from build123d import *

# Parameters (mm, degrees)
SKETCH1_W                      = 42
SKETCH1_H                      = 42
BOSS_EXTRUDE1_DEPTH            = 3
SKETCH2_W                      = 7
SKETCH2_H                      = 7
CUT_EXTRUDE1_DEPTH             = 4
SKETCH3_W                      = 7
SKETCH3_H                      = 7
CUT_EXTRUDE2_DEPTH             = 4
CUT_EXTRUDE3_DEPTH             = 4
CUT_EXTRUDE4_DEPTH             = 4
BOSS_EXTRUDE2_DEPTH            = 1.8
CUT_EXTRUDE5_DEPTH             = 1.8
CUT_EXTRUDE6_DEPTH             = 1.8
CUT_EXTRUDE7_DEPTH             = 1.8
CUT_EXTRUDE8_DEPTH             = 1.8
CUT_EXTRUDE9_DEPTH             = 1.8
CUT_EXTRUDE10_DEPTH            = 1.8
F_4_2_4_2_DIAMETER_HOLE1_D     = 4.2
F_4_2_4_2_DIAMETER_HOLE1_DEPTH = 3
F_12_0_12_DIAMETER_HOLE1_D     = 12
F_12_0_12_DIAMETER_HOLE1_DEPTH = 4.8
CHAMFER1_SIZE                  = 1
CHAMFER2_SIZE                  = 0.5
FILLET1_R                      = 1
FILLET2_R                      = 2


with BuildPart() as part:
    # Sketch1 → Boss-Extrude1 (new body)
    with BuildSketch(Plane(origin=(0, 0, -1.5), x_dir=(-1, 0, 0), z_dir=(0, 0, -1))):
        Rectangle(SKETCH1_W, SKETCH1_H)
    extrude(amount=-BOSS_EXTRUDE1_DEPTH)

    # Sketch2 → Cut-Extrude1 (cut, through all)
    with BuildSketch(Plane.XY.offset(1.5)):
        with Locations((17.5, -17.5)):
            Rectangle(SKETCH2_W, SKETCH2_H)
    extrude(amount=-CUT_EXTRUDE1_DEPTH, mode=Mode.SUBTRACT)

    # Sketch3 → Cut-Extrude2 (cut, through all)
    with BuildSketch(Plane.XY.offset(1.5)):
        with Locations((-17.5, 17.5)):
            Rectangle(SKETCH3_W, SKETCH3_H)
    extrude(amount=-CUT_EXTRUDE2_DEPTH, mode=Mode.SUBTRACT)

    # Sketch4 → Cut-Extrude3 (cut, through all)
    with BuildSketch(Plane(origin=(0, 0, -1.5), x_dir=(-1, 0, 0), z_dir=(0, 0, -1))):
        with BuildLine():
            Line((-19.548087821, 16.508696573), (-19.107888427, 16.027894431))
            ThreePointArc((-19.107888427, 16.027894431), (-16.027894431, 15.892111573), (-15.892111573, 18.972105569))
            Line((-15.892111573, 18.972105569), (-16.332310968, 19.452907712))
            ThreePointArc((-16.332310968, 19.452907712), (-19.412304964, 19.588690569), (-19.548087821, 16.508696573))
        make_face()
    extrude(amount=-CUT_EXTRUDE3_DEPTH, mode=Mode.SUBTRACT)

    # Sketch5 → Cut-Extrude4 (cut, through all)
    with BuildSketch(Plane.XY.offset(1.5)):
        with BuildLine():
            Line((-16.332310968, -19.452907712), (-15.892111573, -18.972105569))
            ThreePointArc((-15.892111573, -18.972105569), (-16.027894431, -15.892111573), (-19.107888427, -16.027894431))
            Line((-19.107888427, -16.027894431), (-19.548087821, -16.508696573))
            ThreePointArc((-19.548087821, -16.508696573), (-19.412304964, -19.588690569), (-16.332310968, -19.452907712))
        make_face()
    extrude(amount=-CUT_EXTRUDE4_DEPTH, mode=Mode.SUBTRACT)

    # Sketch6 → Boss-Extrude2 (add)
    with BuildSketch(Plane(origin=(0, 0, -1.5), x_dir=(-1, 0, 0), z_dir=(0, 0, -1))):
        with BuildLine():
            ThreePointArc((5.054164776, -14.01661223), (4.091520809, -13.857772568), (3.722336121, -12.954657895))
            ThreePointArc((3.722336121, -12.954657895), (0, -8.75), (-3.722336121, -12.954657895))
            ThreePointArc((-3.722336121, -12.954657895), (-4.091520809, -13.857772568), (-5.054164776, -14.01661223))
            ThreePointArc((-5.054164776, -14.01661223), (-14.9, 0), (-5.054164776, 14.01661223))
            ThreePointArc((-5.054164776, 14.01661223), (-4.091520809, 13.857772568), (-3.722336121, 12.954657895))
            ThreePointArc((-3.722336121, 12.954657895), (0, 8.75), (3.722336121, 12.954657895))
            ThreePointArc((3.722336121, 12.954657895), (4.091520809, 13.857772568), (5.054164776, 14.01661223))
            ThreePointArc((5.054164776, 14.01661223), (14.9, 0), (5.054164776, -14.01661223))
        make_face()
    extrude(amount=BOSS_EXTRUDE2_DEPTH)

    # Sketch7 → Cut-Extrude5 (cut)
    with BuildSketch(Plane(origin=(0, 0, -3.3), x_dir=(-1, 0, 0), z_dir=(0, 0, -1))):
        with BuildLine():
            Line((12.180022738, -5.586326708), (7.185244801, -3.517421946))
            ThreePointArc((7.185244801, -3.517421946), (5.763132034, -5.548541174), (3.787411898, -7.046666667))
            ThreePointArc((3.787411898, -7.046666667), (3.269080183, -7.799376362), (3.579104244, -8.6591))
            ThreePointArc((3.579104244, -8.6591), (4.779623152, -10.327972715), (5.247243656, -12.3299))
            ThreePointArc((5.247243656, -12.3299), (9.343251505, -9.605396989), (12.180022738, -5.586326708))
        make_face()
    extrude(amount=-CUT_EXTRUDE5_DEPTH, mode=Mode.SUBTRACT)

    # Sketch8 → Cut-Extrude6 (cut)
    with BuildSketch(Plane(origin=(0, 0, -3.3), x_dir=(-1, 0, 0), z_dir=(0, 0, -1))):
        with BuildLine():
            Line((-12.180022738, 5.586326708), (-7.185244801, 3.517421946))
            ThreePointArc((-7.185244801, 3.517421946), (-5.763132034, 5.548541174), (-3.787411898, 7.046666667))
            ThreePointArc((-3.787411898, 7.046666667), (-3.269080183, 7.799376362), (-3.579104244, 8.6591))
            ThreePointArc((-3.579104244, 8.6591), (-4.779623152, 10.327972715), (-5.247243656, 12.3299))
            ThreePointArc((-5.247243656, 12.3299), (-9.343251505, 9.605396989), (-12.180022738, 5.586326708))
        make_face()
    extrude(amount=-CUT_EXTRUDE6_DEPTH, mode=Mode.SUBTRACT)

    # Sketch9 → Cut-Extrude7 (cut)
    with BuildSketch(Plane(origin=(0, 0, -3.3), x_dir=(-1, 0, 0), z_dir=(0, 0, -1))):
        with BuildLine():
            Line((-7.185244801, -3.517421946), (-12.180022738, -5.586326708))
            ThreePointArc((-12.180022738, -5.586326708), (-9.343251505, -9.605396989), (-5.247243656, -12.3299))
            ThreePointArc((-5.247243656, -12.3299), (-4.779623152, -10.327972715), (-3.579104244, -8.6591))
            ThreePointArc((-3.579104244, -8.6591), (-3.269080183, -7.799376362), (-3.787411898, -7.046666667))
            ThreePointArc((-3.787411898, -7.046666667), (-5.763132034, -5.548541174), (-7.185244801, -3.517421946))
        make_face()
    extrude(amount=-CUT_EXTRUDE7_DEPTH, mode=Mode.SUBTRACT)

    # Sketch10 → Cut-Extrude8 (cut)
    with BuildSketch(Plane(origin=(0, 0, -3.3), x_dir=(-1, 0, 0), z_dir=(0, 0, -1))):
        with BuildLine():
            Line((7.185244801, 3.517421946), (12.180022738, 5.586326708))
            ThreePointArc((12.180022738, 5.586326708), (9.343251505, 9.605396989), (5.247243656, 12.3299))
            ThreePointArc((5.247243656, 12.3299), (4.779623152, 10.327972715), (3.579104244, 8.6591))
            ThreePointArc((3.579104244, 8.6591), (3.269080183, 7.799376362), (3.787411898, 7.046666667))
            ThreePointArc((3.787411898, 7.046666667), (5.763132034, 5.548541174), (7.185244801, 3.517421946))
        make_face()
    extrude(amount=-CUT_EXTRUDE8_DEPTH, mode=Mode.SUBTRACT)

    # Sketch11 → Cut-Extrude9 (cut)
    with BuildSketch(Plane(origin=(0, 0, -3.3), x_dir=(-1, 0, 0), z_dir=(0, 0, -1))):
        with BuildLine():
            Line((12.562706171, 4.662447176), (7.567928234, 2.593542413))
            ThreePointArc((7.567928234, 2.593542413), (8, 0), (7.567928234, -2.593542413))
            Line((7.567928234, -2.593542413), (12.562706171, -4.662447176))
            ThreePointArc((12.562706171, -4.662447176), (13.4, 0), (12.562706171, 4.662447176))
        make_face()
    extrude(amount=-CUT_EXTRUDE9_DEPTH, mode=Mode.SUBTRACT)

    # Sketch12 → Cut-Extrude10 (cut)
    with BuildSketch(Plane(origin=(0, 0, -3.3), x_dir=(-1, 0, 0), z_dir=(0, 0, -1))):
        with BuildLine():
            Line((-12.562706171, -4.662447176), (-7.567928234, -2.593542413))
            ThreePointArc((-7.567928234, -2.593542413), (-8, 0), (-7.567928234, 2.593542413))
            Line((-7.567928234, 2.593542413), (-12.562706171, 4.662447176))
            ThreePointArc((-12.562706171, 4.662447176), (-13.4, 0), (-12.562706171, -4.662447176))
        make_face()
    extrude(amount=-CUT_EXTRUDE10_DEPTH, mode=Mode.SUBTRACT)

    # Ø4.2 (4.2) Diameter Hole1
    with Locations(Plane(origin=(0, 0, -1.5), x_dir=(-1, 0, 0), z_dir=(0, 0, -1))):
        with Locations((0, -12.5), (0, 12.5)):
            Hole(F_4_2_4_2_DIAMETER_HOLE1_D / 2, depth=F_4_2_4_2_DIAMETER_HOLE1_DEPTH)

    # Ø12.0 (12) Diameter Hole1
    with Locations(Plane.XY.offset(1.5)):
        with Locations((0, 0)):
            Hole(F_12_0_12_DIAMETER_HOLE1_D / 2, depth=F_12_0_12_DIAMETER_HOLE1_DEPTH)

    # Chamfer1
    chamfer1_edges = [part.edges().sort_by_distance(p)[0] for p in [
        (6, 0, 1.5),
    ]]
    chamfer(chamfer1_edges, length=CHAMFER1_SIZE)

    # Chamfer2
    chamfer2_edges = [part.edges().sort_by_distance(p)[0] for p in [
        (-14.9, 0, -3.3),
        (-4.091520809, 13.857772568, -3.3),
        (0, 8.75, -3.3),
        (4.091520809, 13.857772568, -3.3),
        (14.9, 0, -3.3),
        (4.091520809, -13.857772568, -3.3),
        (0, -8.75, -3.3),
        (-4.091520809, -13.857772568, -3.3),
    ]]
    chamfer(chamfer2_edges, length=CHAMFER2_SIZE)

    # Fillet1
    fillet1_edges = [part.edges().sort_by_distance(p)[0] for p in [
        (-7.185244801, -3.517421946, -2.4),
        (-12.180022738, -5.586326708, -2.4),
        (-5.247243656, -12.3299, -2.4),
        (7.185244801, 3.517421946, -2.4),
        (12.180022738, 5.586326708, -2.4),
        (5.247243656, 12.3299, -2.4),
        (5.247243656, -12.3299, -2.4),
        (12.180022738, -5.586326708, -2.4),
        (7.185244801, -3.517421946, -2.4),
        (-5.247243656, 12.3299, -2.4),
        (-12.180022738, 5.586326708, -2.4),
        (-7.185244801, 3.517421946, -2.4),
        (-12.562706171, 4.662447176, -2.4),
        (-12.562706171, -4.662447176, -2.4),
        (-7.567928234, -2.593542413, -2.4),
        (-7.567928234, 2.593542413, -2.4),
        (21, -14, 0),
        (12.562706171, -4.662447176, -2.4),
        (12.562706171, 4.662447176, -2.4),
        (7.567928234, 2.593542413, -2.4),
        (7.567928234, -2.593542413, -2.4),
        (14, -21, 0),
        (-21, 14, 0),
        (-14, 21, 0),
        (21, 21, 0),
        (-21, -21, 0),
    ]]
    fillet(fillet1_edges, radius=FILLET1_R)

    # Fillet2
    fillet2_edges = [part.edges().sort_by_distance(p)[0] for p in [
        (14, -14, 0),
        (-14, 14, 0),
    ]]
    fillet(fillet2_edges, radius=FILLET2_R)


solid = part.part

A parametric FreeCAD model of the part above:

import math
import FreeCAD as App
import Part
import Sketcher

V = App.Vector
Q = App.Units.Quantity


def edges_at(feature, points):
    """Names of the edges that pass closest to the given points."""
    edges = feature.Shape.Edges
    near = lambda p: min(range(len(edges)), key=lambda i: edges[i].distToShape(Part.Vertex(*p))[0])
    return sorted({f"Edge{near(p) + 1}" for p in points})


def add_polygon(sketch, points):
    """Adds a closed chain of lines whose ends are joined by coincident constraints."""
    first, n = sketch.GeometryCount, len(points)
    for a, b in zip(points, points[1:] + points[:1]):
        sketch.addGeometry(Part.LineSegment(App.Vector(*a, 0), App.Vector(*b, 0)), False)
    for i in range(n):
        sketch.addConstraint(Sketcher.Constraint("Coincident", first + i, 2, first + (i + 1) % n, 1))

doc = App.newDocument("Part")
body = doc.addObject("PartDesign::Body", "Body")

# Sketch on XY plane
sketch1 = body.newObject("Sketcher::SketchObject", "Sketch")
sketch1.AttachmentSupport = (doc.getObject("XY_Plane"), [""])
sketch1.MapMode = "FlatFace"
sketch1.AttachmentOffset = App.Placement(V(0, 0, -1.5), App.Rotation())
add_polygon(sketch1, [(21, 21), (21, -21), (-21, -21), (-21, 21)])  # lines 0-3
sketch1.addConstraint(Sketcher.Constraint("Vertical", 0))
sketch1.addConstraint(Sketcher.Constraint("Horizontal", 1))
sketch1.addConstraint(Sketcher.Constraint("Vertical", 2))
sketch1.addConstraint(Sketcher.Constraint("Horizontal", 3))
sketch1.addConstraint(Sketcher.Constraint("Symmetric", 0, 2, 2, 2, -1, 1))
sketch1.addConstraint(Sketcher.Constraint("Equal", 3, 0))
sketch1.addConstraint(Sketcher.Constraint("DistanceX", 1, 2, 1, 1, Q("42 mm")))
pad1 = body.newObject("PartDesign::Pad", "Pad")
pad1.Profile = sketch1
pad1.Length = 3

# Sketch on XY plane
sketch2 = body.newObject("Sketcher::SketchObject", "Sketch001")
sketch2.AttachmentSupport = (doc.getObject("XY_Plane"), [""])
sketch2.MapMode = "FlatFace"
sketch2.AttachmentOffset = App.Placement(V(0, 0, 1.5), App.Rotation())
add_polygon(sketch2, [(14, -14), (14, -21), (21, -21), (21, -14)])  # lines 0-3
sketch2.addConstraint(Sketcher.Constraint("Vertical", 0))
sketch2.addConstraint(Sketcher.Constraint("Horizontal", 1))
sketch2.addConstraint(Sketcher.Constraint("Vertical", 2))
sketch2.addConstraint(Sketcher.Constraint("Horizontal", 3))
sketch2.addConstraint(Sketcher.Constraint("Equal", 3, 0))
sketch2.addConstraint(Sketcher.Constraint("DistanceX", 1, 1, 1, 2, Q("7 mm")))
sketch2.addConstraint(Sketcher.Constraint("DistanceX", -1, 1, 0, 2, Q("14 mm")))
sketch2.addConstraint(Sketcher.Constraint("DistanceY", 0, 2, -1, 1, Q("21 mm")))
pocket1 = body.newObject("PartDesign::Pocket", "Pocket")
pocket1.Profile = sketch2
pocket1.Type = "ThroughAll"

# Sketch on XY plane
sketch3 = body.newObject("Sketcher::SketchObject", "Sketch002")
sketch3.AttachmentSupport = (doc.getObject("XY_Plane"), [""])
sketch3.MapMode = "FlatFace"
sketch3.AttachmentOffset = App.Placement(V(0, 0, 1.5), App.Rotation())
add_polygon(sketch3, [(-21, 21), (-21, 14), (-14, 14), (-14, 21)])  # lines 0-3
sketch3.addConstraint(Sketcher.Constraint("Vertical", 0))
sketch3.addConstraint(Sketcher.Constraint("Horizontal", 1))
sketch3.addConstraint(Sketcher.Constraint("Vertical", 2))
sketch3.addConstraint(Sketcher.Constraint("Horizontal", 3))
sketch3.addConstraint(Sketcher.Constraint("Equal", 3, 0))
sketch3.addConstraint(Sketcher.Constraint("DistanceX", 1, 1, 1, 2, Q("7 mm")))
sketch3.addConstraint(Sketcher.Constraint("DistanceX", 0, 2, -1, 1, Q("21 mm")))
sketch3.addConstraint(Sketcher.Constraint("DistanceY", -1, 1, 0, 2, Q("14 mm")))
pocket2 = body.newObject("PartDesign::Pocket", "Pocket001")
pocket2.Profile = sketch3
pocket2.Type = "ThroughAll"

# Sketch on XY plane
sketch4 = body.newObject("Sketcher::SketchObject", "Sketch003")
sketch4.AttachmentSupport = (doc.getObject("XY_Plane"), [""])
sketch4.MapMode = "FlatFace"
sketch4.AttachmentOffset = App.Placement(V(0, 0, -1.5), App.Rotation())
sketch4.addGeometry(Part.LineSegment(V(19.548088, 16.508697, 0), V(19.107888, 16.027894, 0)), False)
sketch4.addGeometry(Part.ArcOfCircle(Part.Circle(V(17.5, 17.5, 0), V(0, 0, 1), 2.18), math.radians(137.524275), math.radians(317.524275)), False)
sketch4.addGeometry(Part.LineSegment(V(15.892112, 18.972106, 0), V(16.332311, 19.452908, 0)), False)
sketch4.addGeometry(Part.ArcOfCircle(Part.Circle(V(17.940199, 17.980802, 0), V(0, 0, 1), 2.18), math.radians(-42.475725), math.radians(137.524275)), False)
sketch4.addConstraint(Sketcher.Constraint("Tangent", 0, 2, 1, 2))
sketch4.addConstraint(Sketcher.Constraint("Tangent", 1, 1, 2, 1))
sketch4.addConstraint(Sketcher.Constraint("Tangent", 2, 2, 3, 2))
sketch4.addConstraint(Sketcher.Constraint("Tangent", 3, 1, 0, 1))
sketch4.addConstraint(Sketcher.Constraint("Equal", 1, 3))
sketch4.addConstraint(Sketcher.Constraint("Radius", 1, Q("2.18 mm")))
sketch4.addConstraint(Sketcher.Constraint("DistanceX", -1, 1, 1, 3, Q("17.5 mm")))
sketch4.addConstraint(Sketcher.Constraint("DistanceY", -1, 1, 1, 3, Q("17.5 mm")))
sketch4.addConstraint(Sketcher.Constraint("DistanceX", -1, 1, 3, 3, Q("17.940199 mm")))
sketch4.addConstraint(Sketcher.Constraint("Distance", 0, Q("0.651879 mm")))
pocket3 = body.newObject("PartDesign::Pocket", "Pocket002")
pocket3.Profile = sketch4
pocket3.Type = "ThroughAll"
pocket3.Reversed = True

# Sketch on XY plane
sketch5 = body.newObject("Sketcher::SketchObject", "Sketch004")
sketch5.AttachmentSupport = (doc.getObject("XY_Plane"), [""])
sketch5.MapMode = "FlatFace"
sketch5.AttachmentOffset = App.Placement(V(0, 0, 1.5), App.Rotation())
sketch5.addGeometry(Part.LineSegment(V(-16.332311, -19.452908, 0), V(-15.892112, -18.972106, 0)), False)
sketch5.addGeometry(Part.ArcOfCircle(Part.Circle(V(-17.5, -17.5, 0), V(0, 0, 1), 2.18), math.radians(-42.475725), math.radians(137.524275)), False)
sketch5.addGeometry(Part.LineSegment(V(-19.107888, -16.027894, 0), V(-19.548088, -16.508697, 0)), False)
sketch5.addGeometry(Part.ArcOfCircle(Part.Circle(V(-17.940199, -17.980802, 0), V(0, 0, 1), 2.18), math.radians(137.524275), math.radians(317.524275)), False)
sketch5.addConstraint(Sketcher.Constraint("Tangent", 0, 2, 1, 1))
sketch5.addConstraint(Sketcher.Constraint("Tangent", 1, 2, 2, 1))
sketch5.addConstraint(Sketcher.Constraint("Tangent", 2, 2, 3, 1))
sketch5.addConstraint(Sketcher.Constraint("Tangent", 3, 2, 0, 1))
sketch5.addConstraint(Sketcher.Constraint("Equal", 1, 3))
sketch5.addConstraint(Sketcher.Constraint("Radius", 1, Q("2.18 mm")))
sketch5.addConstraint(Sketcher.Constraint("DistanceX", 1, 3, -1, 1, Q("17.5 mm")))
sketch5.addConstraint(Sketcher.Constraint("DistanceY", 1, 3, -1, 1, Q("17.5 mm")))
sketch5.addConstraint(Sketcher.Constraint("DistanceX", 3, 3, -1, 1, Q("17.940199 mm")))
sketch5.addConstraint(Sketcher.Constraint("Distance", 0, Q("0.651879 mm")))
pocket4 = body.newObject("PartDesign::Pocket", "Pocket003")
pocket4.Profile = sketch5
pocket4.Type = "ThroughAll"

# Sketch on XY plane
sketch6 = body.newObject("Sketcher::SketchObject", "Sketch005")
sketch6.AttachmentSupport = (doc.getObject("XY_Plane"), [""])
sketch6.MapMode = "FlatFace"
sketch6.AttachmentOffset = App.Placement(V(0, 0, -1.5), App.Rotation())
sketch6.addGeometry(Part.ArcOfCircle(Part.Circle(V(-4.714959, -13.0759, 0), V(0, 0, 1), 1), math.radians(-109.828488), math.radians(6.963793)), False)
sketch6.addGeometry(Part.ArcOfCircle(Part.Circle(V(0, 0, 0), V(0, 0, 1), 14.9), math.radians(109.828488), math.radians(250.171512)), False)
sketch6.addGeometry(Part.ArcOfCircle(Part.Circle(V(-4.714959, 13.0759, 0), V(0, 0, 1), 1), math.radians(-6.963793), math.radians(109.828488)), False)
sketch6.addGeometry(Part.ArcOfCircle(Part.Circle(V(0, 12.5, 0), V(0, 0, 1), 3.75), math.radians(173.036207), math.radians(366.963793)), False)
sketch6.addGeometry(Part.ArcOfCircle(Part.Circle(V(4.714959, 13.0759, 0), V(0, 0, 1), 1), math.radians(70.171512), math.radians(186.963793)), False)
sketch6.addGeometry(Part.ArcOfCircle(Part.Circle(V(0, 0, 0), V(0, 0, 1), 14.9), math.radians(-70.171512), math.radians(70.171512)), False)
sketch6.addGeometry(Part.ArcOfCircle(Part.Circle(V(4.714959, -13.0759, 0), V(0, 0, 1), 1), math.radians(173.036207), math.radians(289.828488)), False)
sketch6.addGeometry(Part.ArcOfCircle(Part.Circle(V(0, -12.5, 0), V(0, 0, 1), 3.75), math.radians(-6.963793), math.radians(186.963793)), False)
sketch6.addConstraint(Sketcher.Constraint("Tangent", 0, 1, 1, 2))
sketch6.addConstraint(Sketcher.Constraint("Tangent", 1, 1, 2, 2))
sketch6.addConstraint(Sketcher.Constraint("Tangent", 2, 1, 3, 1))
sketch6.addConstraint(Sketcher.Constraint("Tangent", 3, 2, 4, 2))
sketch6.addConstraint(Sketcher.Constraint("Tangent", 4, 1, 5, 2))
sketch6.addConstraint(Sketcher.Constraint("Tangent", 5, 1, 6, 2))
sketch6.addConstraint(Sketcher.Constraint("Tangent", 6, 1, 7, 1))
sketch6.addConstraint(Sketcher.Constraint("Tangent", 7, 2, 0, 2))
sketch6.addConstraint(Sketcher.Constraint("Coincident", 1, 3, -1, 1))
sketch6.addConstraint(Sketcher.Constraint("Coincident", 5, 3, -1, 1))
sketch6.addConstraint(Sketcher.Constraint("Equal", 0, 2))
sketch6.addConstraint(Sketcher.Constraint("Equal", 2, 4))
sketch6.addConstraint(Sketcher.Constraint("Equal", 1, 5))
sketch6.addConstraint(Sketcher.Constraint("Equal", 4, 6))
sketch6.addConstraint(Sketcher.Constraint("Equal", 3, 7))
sketch6.addConstraint(Sketcher.Constraint("Symmetric", 3, 3, 7, 3, -1, 1))
sketch6.addConstraint(Sketcher.Constraint("PointOnObject", 3, 3, -2))
sketch6.addConstraint(Sketcher.Constraint("Radius", 0, Q("1 mm")))
sketch6.addConstraint(Sketcher.Constraint("Radius", 1, Q("14.9 mm")))
sketch6.addConstraint(Sketcher.Constraint("Radius", 3, Q("3.75 mm")))
sketch6.addConstraint(Sketcher.Constraint("DistanceY", 7, 3, 3, 3, Q("25 mm")))
pad2 = body.newObject("PartDesign::Pad", "Pad001")
pad2.Profile = sketch6
pad2.Length = 1.8
pad2.Reversed = True

# Sketch on XY plane
sketch7 = body.newObject("Sketcher::SketchObject", "Sketch006")
sketch7.AttachmentSupport = (doc.getObject("XY_Plane"), [""])
sketch7.MapMode = "FlatFace"
sketch7.AttachmentOffset = App.Placement(V(0, 0, -3.3), App.Rotation())
sketch7.addGeometry(Part.LineSegment(V(-12.180023, -5.586327, 0), V(-7.185245, -3.517422, 0)), False)
sketch7.addGeometry(Part.ArcOfCircle(Part.Circle(V(0, 0, 0), V(0, 0, 1), 8), math.radians(-153.916678), math.radians(-118.256948)), False)
sketch7.addGeometry(Part.ArcOfCircle(Part.Circle(V(-4.260838, -7.9275, 0), V(0, 0, 1), 1), math.radians(-47.020696), math.radians(61.743052)), False)
sketch7.addGeometry(Part.ArcOfCircle(Part.Circle(V(0, -12.5, 0), V(0, 0, 1), 5.25), math.radians(132.979304), math.radians(178.143292)), False)
sketch7.addGeometry(Part.ArcOfCircle(Part.Circle(V(0, 0, 0), V(0, 0, 1), 13.4), math.radians(-155.361601), math.radians(-113.05318)), False)
sketch7.addConstraint(Sketcher.Constraint("Coincident", 0, 2, 1, 1))
sketch7.addConstraint(Sketcher.Constraint("Tangent", 1, 2, 2, 2))
sketch7.addConstraint(Sketcher.Constraint("Tangent", 2, 1, 3, 1))
sketch7.addConstraint(Sketcher.Constraint("Coincident", 3, 2, 4, 2))
sketch7.addConstraint(Sketcher.Constraint("Coincident", 4, 1, 0, 1))
sketch7.addConstraint(Sketcher.Constraint("Coincident", 1, 3, -1, 1))
sketch7.addConstraint(Sketcher.Constraint("Coincident", 4, 3, -1, 1))
sketch7.addConstraint(Sketcher.Constraint("PointOnObject", 3, 3, -2))
sketch7.addConstraint(Sketcher.Constraint("Radius", 1, Q("8 mm")))
sketch7.addConstraint(Sketcher.Constraint("Radius", 2, Q("1 mm")))
sketch7.addConstraint(Sketcher.Constraint("Radius", 4, Q("13.4 mm")))
sketch7.addConstraint(Sketcher.Constraint("Radius", 3, Q("5.25 mm")))
sketch7.addConstraint(Sketcher.Constraint("Angle", 0, Q("22.5 deg")))
sketch7.addConstraint(Sketcher.Constraint("DistanceY", 3, 3, -1, 1, Q("12.5 mm")))
sketch7.addConstraint(Sketcher.Constraint("DistanceX", 0, 2, 3, 2, Q("1.938001 mm")))
pocket5 = body.newObject("PartDesign::Pocket", "Pocket004")
pocket5.Profile = sketch7
pocket5.Length = 1.8
pocket5.Reversed = True

# Sketch on XY plane
sketch8 = body.newObject("Sketcher::SketchObject", "Sketch007")
sketch8.AttachmentSupport = (doc.getObject("XY_Plane"), [""])
sketch8.MapMode = "FlatFace"
sketch8.AttachmentOffset = App.Placement(V(0, 0, -3.3), App.Rotation())
sketch8.addGeometry(Part.LineSegment(V(12.180023, 5.586327, 0), V(7.185245, 3.517422, 0)), False)
sketch8.addGeometry(Part.ArcOfCircle(Part.Circle(V(0, 0, 0), V(0, 0, 1), 8), math.radians(26.083322), math.radians(61.743052)), False)
sketch8.addGeometry(Part.ArcOfCircle(Part.Circle(V(4.260838, 7.9275, 0), V(0, 0, 1), 1), math.radians(132.979304), math.radians(241.743052)), False)
sketch8.addGeometry(Part.ArcOfCircle(Part.Circle(V(0, 12.5, 0), V(0, 0, 1), 5.25), math.radians(-47.020696), math.radians(-1.856708)), False)
sketch8.addGeometry(Part.ArcOfCircle(Part.Circle(V(0, 0, 0), V(0, 0, 1), 13.4), math.radians(24.638399), math.radians(66.94682)), False)
sketch8.addConstraint(Sketcher.Constraint("Coincident", 0, 2, 1, 1))
sketch8.addConstraint(Sketcher.Constraint("Tangent", 1, 2, 2, 2))
sketch8.addConstraint(Sketcher.Constraint("Tangent", 2, 1, 3, 1))
sketch8.addConstraint(Sketcher.Constraint("Coincident", 3, 2, 4, 2))
sketch8.addConstraint(Sketcher.Constraint("Coincident", 4, 1, 0, 1))
sketch8.addConstraint(Sketcher.Constraint("Coincident", 1, 3, -1, 1))
sketch8.addConstraint(Sketcher.Constraint("Coincident", 4, 3, -1, 1))
sketch8.addConstraint(Sketcher.Constraint("PointOnObject", 3, 3, -2))
sketch8.addConstraint(Sketcher.Constraint("Radius", 1, Q("8 mm")))
sketch8.addConstraint(Sketcher.Constraint("Radius", 2, Q("1 mm")))
sketch8.addConstraint(Sketcher.Constraint("Radius", 4, Q("13.4 mm")))
sketch8.addConstraint(Sketcher.Constraint("Radius", 3, Q("5.25 mm")))
sketch8.addConstraint(Sketcher.Constraint("Angle", 0, Q("-157.5 deg")))
sketch8.addConstraint(Sketcher.Constraint("DistanceY", -1, 1, 3, 3, Q("12.5 mm")))
sketch8.addConstraint(Sketcher.Constraint("DistanceX", 3, 2, 0, 2, Q("1.938001 mm")))
pocket6 = body.newObject("PartDesign::Pocket", "Pocket005")
pocket6.Profile = sketch8
pocket6.Length = 1.8
pocket6.Reversed = True

# Sketch on XY plane
sketch9 = body.newObject("Sketcher::SketchObject", "Sketch008")
sketch9.AttachmentSupport = (doc.getObject("XY_Plane"), [""])
sketch9.MapMode = "FlatFace"
sketch9.AttachmentOffset = App.Placement(V(0, 0, -3.3), App.Rotation())
sketch9.addGeometry(Part.LineSegment(V(7.185245, -3.517422, 0), V(12.180023, -5.586327, 0)), False)
sketch9.addGeometry(Part.ArcOfCircle(Part.Circle(V(0, 0, 0), V(0, 0, 1), 13.4), math.radians(-66.94682), math.radians(-24.638399)), False)
sketch9.addGeometry(Part.ArcOfCircle(Part.Circle(V(0, -12.5, 0), V(0, 0, 1), 5.25), math.radians(1.856708), math.radians(47.020696)), False)
sketch9.addGeometry(Part.ArcOfCircle(Part.Circle(V(4.260838, -7.9275, 0), V(0, 0, 1), 1), math.radians(118.256948), math.radians(227.020696)), False)
sketch9.addGeometry(Part.ArcOfCircle(Part.Circle(V(0, 0, 0), V(0, 0, 1), 8), math.radians(-61.743052), math.radians(-26.083322)), False)
sketch9.addConstraint(Sketcher.Constraint("Coincident", 0, 2, 1, 2))
sketch9.addConstraint(Sketcher.Constraint("Coincident", 1, 1, 2, 1))
sketch9.addConstraint(Sketcher.Constraint("Tangent", 2, 2, 3, 2))
sketch9.addConstraint(Sketcher.Constraint("Tangent", 3, 1, 4, 1))
sketch9.addConstraint(Sketcher.Constraint("Coincident", 4, 2, 0, 1))
sketch9.addConstraint(Sketcher.Constraint("Coincident", 1, 3, -1, 1))
sketch9.addConstraint(Sketcher.Constraint("Coincident", 4, 3, -1, 1))
sketch9.addConstraint(Sketcher.Constraint("PointOnObject", 2, 3, -2))
sketch9.addConstraint(Sketcher.Constraint("Radius", 3, Q("1 mm")))
sketch9.addConstraint(Sketcher.Constraint("Radius", 4, Q("8 mm")))
sketch9.addConstraint(Sketcher.Constraint("Radius", 1, Q("13.4 mm")))
sketch9.addConstraint(Sketcher.Constraint("Radius", 2, Q("5.25 mm")))
sketch9.addConstraint(Sketcher.Constraint("Angle", 0, Q("-22.5 deg")))
sketch9.addConstraint(Sketcher.Constraint("DistanceY", 2, 3, -1, 1, Q("12.5 mm")))
sketch9.addConstraint(Sketcher.Constraint("Distance", 0, Q("5.406309 mm")))
pocket7 = body.newObject("PartDesign::Pocket", "Pocket006")
pocket7.Profile = sketch9
pocket7.Length = 1.8
pocket7.Reversed = True

# Sketch on XY plane
sketch10 = body.newObject("Sketcher::SketchObject", "Sketch009")
sketch10.AttachmentSupport = (doc.getObject("XY_Plane"), [""])
sketch10.MapMode = "FlatFace"
sketch10.AttachmentOffset = App.Placement(V(0, 0, -3.3), App.Rotation())
sketch10.addGeometry(Part.LineSegment(V(-7.185245, 3.517422, 0), V(-12.180023, 5.586327, 0)), False)
sketch10.addGeometry(Part.ArcOfCircle(Part.Circle(V(0, 0, 0), V(0, 0, 1), 13.4), math.radians(113.05318), math.radians(155.361601)), False)
sketch10.addGeometry(Part.ArcOfCircle(Part.Circle(V(0, 12.5, 0), V(0, 0, 1), 5.25), math.radians(-178.143292), math.radians(-132.979304)), False)
sketch10.addGeometry(Part.ArcOfCircle(Part.Circle(V(-4.260838, 7.9275, 0), V(0, 0, 1), 1), math.radians(-61.743052), math.radians(47.020696)), False)
sketch10.addGeometry(Part.ArcOfCircle(Part.Circle(V(0, 0, 0), V(0, 0, 1), 8), math.radians(118.256948), math.radians(153.916678)), False)
sketch10.addConstraint(Sketcher.Constraint("Coincident", 0, 2, 1, 2))
sketch10.addConstraint(Sketcher.Constraint("Coincident", 1, 1, 2, 1))
sketch10.addConstraint(Sketcher.Constraint("Tangent", 2, 2, 3, 2))
sketch10.addConstraint(Sketcher.Constraint("Tangent", 3, 1, 4, 1))
sketch10.addConstraint(Sketcher.Constraint("Coincident", 4, 2, 0, 1))
sketch10.addConstraint(Sketcher.Constraint("Coincident", 1, 3, -1, 1))
sketch10.addConstraint(Sketcher.Constraint("Coincident", 4, 3, -1, 1))
sketch10.addConstraint(Sketcher.Constraint("PointOnObject", 2, 3, -2))
sketch10.addConstraint(Sketcher.Constraint("Radius", 3, Q("1 mm")))
sketch10.addConstraint(Sketcher.Constraint("Radius", 4, Q("8 mm")))
sketch10.addConstraint(Sketcher.Constraint("Radius", 1, Q("13.4 mm")))
sketch10.addConstraint(Sketcher.Constraint("Radius", 2, Q("5.25 mm")))
sketch10.addConstraint(Sketcher.Constraint("Angle", 0, Q("157.5 deg")))
sketch10.addConstraint(Sketcher.Constraint("DistanceY", -1, 1, 2, 3, Q("12.5 mm")))
sketch10.addConstraint(Sketcher.Constraint("Distance", 0, Q("5.406309 mm")))
pocket8 = body.newObject("PartDesign::Pocket", "Pocket007")
pocket8.Profile = sketch10
pocket8.Length = 1.8
pocket8.Reversed = True

# Sketch on XY plane
sketch11 = body.newObject("Sketcher::SketchObject", "Sketch010")
sketch11.AttachmentSupport = (doc.getObject("XY_Plane"), [""])
sketch11.MapMode = "FlatFace"
sketch11.AttachmentOffset = App.Placement(V(0, 0, -3.3), App.Rotation())
sketch11.addGeometry(Part.LineSegment(V(-12.562706, 4.662447, 0), V(-7.567928, 2.593542, 0)), False)
sketch11.addGeometry(Part.ArcOfCircle(Part.Circle(V(0, 0, 0), V(0, 0, 1), 8), math.radians(161.083322), math.radians(198.916678)), False)
sketch11.addGeometry(Part.LineSegment(V(-7.567928, -2.593542, 0), V(-12.562706, -4.662447, 0)), False)
sketch11.addGeometry(Part.ArcOfCircle(Part.Circle(V(0, 0, 0), V(0, 0, 1), 13.4), math.radians(159.638399), math.radians(200.361601)), False)
sketch11.addConstraint(Sketcher.Constraint("Coincident", 0, 2, 1, 1))
sketch11.addConstraint(Sketcher.Constraint("Coincident", 1, 2, 2, 1))
sketch11.addConstraint(Sketcher.Constraint("Coincident", 2, 2, 3, 2))
sketch11.addConstraint(Sketcher.Constraint("Coincident", 3, 1, 0, 1))
sketch11.addConstraint(Sketcher.Constraint("Coincident", 1, 3, -1, 1))
sketch11.addConstraint(Sketcher.Constraint("Coincident", 3, 3, -1, 1))
sketch11.addConstraint(Sketcher.Constraint("Vertical", 0, 2, 1, 2))
sketch11.addConstraint(Sketcher.Constraint("Vertical", 2, 2, 3, 1))
sketch11.addConstraint(Sketcher.Constraint("Radius", 1, Q("8 mm")))
sketch11.addConstraint(Sketcher.Constraint("Radius", 3, Q("13.4 mm")))
sketch11.addConstraint(Sketcher.Constraint("Angle", 0, Q("-22.5 deg")))
sketch11.addConstraint(Sketcher.Constraint("Distance", 0, Q("5.406309 mm")))
pocket9 = body.newObject("PartDesign::Pocket", "Pocket008")
pocket9.Profile = sketch11
pocket9.Length = 1.8
pocket9.Reversed = True

# Sketch on XY plane
sketch12 = body.newObject("Sketcher::SketchObject", "Sketch011")
sketch12.AttachmentSupport = (doc.getObject("XY_Plane"), [""])
sketch12.MapMode = "FlatFace"
sketch12.AttachmentOffset = App.Placement(V(0, 0, -3.3), App.Rotation())
sketch12.addGeometry(Part.LineSegment(V(12.562706, -4.662447, 0), V(7.567928, -2.593542, 0)), False)
sketch12.addGeometry(Part.ArcOfCircle(Part.Circle(V(0, 0, 0), V(0, 0, 1), 8), math.radians(-18.916678), math.radians(18.916678)), False)
sketch12.addGeometry(Part.LineSegment(V(7.567928, 2.593542, 0), V(12.562706, 4.662447, 0)), False)
sketch12.addGeometry(Part.ArcOfCircle(Part.Circle(V(0, 0, 0), V(0, 0, 1), 13.4), math.radians(-20.361601), math.radians(20.361601)), False)
sketch12.addConstraint(Sketcher.Constraint("Coincident", 0, 2, 1, 1))
sketch12.addConstraint(Sketcher.Constraint("Coincident", 1, 2, 2, 1))
sketch12.addConstraint(Sketcher.Constraint("Coincident", 2, 2, 3, 2))
sketch12.addConstraint(Sketcher.Constraint("Coincident", 3, 1, 0, 1))
sketch12.addConstraint(Sketcher.Constraint("Coincident", 1, 3, -1, 1))
sketch12.addConstraint(Sketcher.Constraint("Coincident", 3, 3, -1, 1))
sketch12.addConstraint(Sketcher.Constraint("Vertical", 0, 2, 1, 2))
sketch12.addConstraint(Sketcher.Constraint("Vertical", 2, 2, 3, 1))
sketch12.addConstraint(Sketcher.Constraint("Radius", 1, Q("8 mm")))
sketch12.addConstraint(Sketcher.Constraint("Radius", 3, Q("13.4 mm")))
sketch12.addConstraint(Sketcher.Constraint("Angle", 0, Q("157.5 deg")))
sketch12.addConstraint(Sketcher.Constraint("Distance", 0, Q("5.406309 mm")))
pocket10 = body.newObject("PartDesign::Pocket", "Pocket009")
pocket10.Profile = sketch12
pocket10.Length = 1.8
pocket10.Reversed = True

# Sketch on XY plane
sketch13 = body.newObject("Sketcher::SketchObject", "Sketch012")
sketch13.AttachmentSupport = (doc.getObject("XY_Plane"), [""])
sketch13.MapMode = "FlatFace"
sketch13.AttachmentOffset = App.Placement(V(0, 0, -1.5), App.Rotation())
sketch13.addGeometry(Part.Circle(V(0, -12.5, 0), V(0, 0, 1), 2.1), False)
sketch13.addGeometry(Part.Circle(V(0, 12.5, 0), V(0, 0, 1), 2.1), False)
sketch13.addConstraint(Sketcher.Constraint("Equal", 0, 1))
sketch13.addConstraint(Sketcher.Constraint("Symmetric", 0, 3, 1, 3, -1, 1))
sketch13.addConstraint(Sketcher.Constraint("PointOnObject", 0, 3, -2))
sketch13.addConstraint(Sketcher.Constraint("Diameter", 0, Q("4.2 mm")))
sketch13.addConstraint(Sketcher.Constraint("DistanceY", 0, 3, 1, 3, Q("25 mm")))
doc.recompute()
hole = body.newObject("PartDesign::Hole", "Hole")
hole.Profile = sketch13
hole.ThreadType = "None"
hole.Diameter = 4.2
hole.DepthType = "Dimension"
hole.Depth = 3
hole.DrillPoint = "Flat"
hole.Reversed = True

# Sketch on XY plane
sketch14 = body.newObject("Sketcher::SketchObject", "Sketch013")
sketch14.AttachmentSupport = (doc.getObject("XY_Plane"), [""])
sketch14.MapMode = "FlatFace"
sketch14.AttachmentOffset = App.Placement(V(0, 0, 1.5), App.Rotation())
sketch14.addGeometry(Part.Circle(V(0, 0, 0), V(0, 0, 1), 6), False)
sketch14.addConstraint(Sketcher.Constraint("Coincident", 0, 3, -1, 1))
sketch14.addConstraint(Sketcher.Constraint("Diameter", 0, Q("12 mm")))
doc.recompute()
hole2 = body.newObject("PartDesign::Hole", "Hole001")
hole2.Profile = sketch14
hole2.ThreadType = "None"
hole2.Diameter = 12
hole2.DepthType = "Dimension"
hole2.Depth = 4.8
hole2.DrillPoint = "Flat"
doc.recompute()

chamfer = body.newObject("PartDesign::Chamfer", "Chamfer")
chamfer.Base = (hole2, edges_at(hole2, [(6, 0, 1.5)]))
chamfer.Size = 1
doc.recompute()

chamfer2 = body.newObject("PartDesign::Chamfer", "Chamfer001")
chamfer2.Base = (chamfer, edges_at(chamfer, [
    (-14.9, 0, -3.3),
    (-4.092, 13.858, -3.3),
    (0, 8.75, -3.3),
    (4.092, 13.858, -3.3),
    (14.9, 0, -3.3),
    (4.092, -13.858, -3.3),
    (0, -8.75, -3.3),
    (-4.092, -13.858, -3.3),
]))
chamfer2.Size = 0.5
doc.recompute()

fillet = body.newObject("PartDesign::Fillet", "Fillet")
fillet.Base = (chamfer2, edges_at(chamfer2, [
    (-7.185, -3.517, -2.4),
    (-12.18, -5.586, -2.4),
    (-5.247, -12.33, -2.4),
    (7.185, 3.517, -2.4),
    (12.18, 5.586, -2.4),
    (5.247, 12.33, -2.4),
    (5.247, -12.33, -2.4),
    (12.18, -5.586, -2.4),
    (7.185, -3.517, -2.4),
    (-5.247, 12.33, -2.4),
    (-12.18, 5.586, -2.4),
    (-7.185, 3.517, -2.4),
    (-12.563, 4.662, -2.4),
    (-12.563, -4.662, -2.4),
    (-7.568, -2.594, -2.4),
    (-7.568, 2.594, -2.4),
    (21, -14, 0),
    (12.563, -4.662, -2.4),
    (12.563, 4.662, -2.4),
    (7.568, 2.594, -2.4),
    (7.568, -2.594, -2.4),
    (14, -21, 0),
    (-21, 14, 0),
    (-14, 21, 0),
    (21, 21, 0),
    (-21, -21, 0),
]))
fillet.Radius = 1
doc.recompute()

fillet2 = body.newObject("PartDesign::Fillet", "Fillet001")
fillet2.Base = (fillet, edges_at(fillet, [(14, -14, 0), (-14, 14, 0)]))
fillet2.Radius = 2

doc.recompute()
